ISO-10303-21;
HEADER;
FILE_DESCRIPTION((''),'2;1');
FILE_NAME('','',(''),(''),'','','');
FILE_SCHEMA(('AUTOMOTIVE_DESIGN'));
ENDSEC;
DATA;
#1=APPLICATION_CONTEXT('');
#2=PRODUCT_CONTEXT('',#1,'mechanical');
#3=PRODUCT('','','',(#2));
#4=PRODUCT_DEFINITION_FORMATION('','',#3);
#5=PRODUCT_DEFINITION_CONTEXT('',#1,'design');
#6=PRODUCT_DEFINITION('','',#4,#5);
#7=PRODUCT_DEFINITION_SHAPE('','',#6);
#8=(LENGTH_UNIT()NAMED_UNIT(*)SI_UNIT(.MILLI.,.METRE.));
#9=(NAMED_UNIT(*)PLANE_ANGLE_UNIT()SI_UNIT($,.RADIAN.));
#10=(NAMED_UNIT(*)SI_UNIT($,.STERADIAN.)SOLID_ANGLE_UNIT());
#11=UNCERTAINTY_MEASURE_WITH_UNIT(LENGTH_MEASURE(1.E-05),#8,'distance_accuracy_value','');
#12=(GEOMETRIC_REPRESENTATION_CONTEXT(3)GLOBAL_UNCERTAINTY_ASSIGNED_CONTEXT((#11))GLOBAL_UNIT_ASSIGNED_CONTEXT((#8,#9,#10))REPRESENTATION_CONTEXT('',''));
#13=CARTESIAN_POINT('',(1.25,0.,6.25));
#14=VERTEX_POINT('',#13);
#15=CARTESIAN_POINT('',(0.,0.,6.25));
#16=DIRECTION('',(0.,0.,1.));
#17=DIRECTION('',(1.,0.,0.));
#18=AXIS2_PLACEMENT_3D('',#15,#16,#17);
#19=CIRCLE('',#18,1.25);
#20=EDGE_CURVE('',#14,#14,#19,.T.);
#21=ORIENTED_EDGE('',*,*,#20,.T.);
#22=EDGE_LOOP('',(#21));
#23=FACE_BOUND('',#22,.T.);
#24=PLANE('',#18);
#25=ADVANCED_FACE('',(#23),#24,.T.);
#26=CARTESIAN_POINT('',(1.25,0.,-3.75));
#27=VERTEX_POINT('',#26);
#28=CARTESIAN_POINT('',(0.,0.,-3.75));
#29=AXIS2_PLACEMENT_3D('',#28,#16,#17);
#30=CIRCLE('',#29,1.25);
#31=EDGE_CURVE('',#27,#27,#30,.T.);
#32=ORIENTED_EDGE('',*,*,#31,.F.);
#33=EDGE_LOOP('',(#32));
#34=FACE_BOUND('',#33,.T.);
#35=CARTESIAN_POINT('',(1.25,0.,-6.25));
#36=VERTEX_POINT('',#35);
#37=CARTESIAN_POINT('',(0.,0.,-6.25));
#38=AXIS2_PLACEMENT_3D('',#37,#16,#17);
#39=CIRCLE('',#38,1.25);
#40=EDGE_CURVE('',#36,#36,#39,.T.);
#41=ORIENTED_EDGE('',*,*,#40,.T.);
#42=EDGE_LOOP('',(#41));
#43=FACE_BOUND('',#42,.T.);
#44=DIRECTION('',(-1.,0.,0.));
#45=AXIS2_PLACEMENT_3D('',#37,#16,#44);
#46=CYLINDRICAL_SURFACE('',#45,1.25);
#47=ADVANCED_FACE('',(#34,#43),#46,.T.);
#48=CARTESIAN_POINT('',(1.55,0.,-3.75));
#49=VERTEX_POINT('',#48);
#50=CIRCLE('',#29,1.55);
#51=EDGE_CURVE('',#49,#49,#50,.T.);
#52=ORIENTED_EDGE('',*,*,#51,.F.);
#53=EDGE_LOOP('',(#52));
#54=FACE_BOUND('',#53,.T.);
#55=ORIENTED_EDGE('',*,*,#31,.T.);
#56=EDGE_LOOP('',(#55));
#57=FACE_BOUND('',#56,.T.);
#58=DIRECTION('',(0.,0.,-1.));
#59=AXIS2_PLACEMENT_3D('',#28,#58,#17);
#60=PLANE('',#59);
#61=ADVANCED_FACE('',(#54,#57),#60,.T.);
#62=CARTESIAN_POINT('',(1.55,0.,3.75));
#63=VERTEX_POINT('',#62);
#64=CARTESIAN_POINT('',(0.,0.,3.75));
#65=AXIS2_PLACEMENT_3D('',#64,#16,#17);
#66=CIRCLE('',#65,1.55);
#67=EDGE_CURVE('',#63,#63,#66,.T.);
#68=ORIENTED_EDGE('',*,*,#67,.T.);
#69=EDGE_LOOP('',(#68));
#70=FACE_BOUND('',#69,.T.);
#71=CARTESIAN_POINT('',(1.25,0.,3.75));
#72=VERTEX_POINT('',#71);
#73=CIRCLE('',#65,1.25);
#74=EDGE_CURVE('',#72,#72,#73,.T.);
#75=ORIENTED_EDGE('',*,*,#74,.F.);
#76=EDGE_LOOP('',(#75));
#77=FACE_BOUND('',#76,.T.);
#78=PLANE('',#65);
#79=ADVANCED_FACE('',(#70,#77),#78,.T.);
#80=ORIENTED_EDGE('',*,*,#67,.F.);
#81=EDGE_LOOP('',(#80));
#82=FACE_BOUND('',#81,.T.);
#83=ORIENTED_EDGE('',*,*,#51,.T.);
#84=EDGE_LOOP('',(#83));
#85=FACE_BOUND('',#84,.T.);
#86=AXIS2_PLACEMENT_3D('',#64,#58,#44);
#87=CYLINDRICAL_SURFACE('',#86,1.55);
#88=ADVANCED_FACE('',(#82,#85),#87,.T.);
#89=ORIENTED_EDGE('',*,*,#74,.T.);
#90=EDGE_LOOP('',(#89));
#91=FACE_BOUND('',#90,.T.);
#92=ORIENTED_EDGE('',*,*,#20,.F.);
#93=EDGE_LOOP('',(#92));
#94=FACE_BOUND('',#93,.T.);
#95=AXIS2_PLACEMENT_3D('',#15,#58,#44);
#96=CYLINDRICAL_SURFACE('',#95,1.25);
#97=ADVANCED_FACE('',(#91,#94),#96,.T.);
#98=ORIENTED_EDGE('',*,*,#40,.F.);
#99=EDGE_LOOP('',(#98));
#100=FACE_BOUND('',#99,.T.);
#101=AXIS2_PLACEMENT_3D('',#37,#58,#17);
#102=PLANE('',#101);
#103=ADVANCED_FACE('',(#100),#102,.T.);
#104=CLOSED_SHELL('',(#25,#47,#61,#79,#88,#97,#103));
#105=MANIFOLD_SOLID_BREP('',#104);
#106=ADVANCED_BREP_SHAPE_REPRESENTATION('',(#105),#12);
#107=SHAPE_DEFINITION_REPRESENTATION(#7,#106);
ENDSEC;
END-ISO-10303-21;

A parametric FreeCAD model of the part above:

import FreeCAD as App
import Part
import Sketcher
Q = App.Units.Quantity

doc = App.newDocument("Part")
body = doc.addObject("PartDesign::Body", "Body")

# Sketch on XY plane
sketch1 = body.newObject("Sketcher::SketchObject", "Sketch")
sketch1.AttachmentSupport = (doc.getObject("XY_Plane"), [""])
sketch1.MapMode = "FlatFace"
sketch1.addGeometry(Part.Circle(App.Vector(0, 0, 0), App.Vector(0, 0, 1), 1.6), False)
sketch1.addConstraint(Sketcher.Constraint("Coincident", 0, 3, -1, 1))
sketch1.addConstraint(Sketcher.Constraint("Diameter", 0, Q("3.1 mm")))
pad1 = body.newObject("PartDesign::Pad", "Pad")
pad1.Profile = sketch1
pad1.Length = 3.75

# Sketch on XY plane
sketch2 = body.newObject("Sketcher::SketchObject", "Sketch001")
sketch2.AttachmentSupport = (doc.getObject("XY_Plane"), [""])
sketch2.MapMode = "FlatFace"
sketch2.AttachmentOffset = App.Placement(App.Vector(0, 0, 3.75), App.Rotation())
sketch2.addGeometry(Part.Circle(App.Vector(0, 0, 0), App.Vector(0, 0, 1), 1.2), False)
sketch2.addConstraint(Sketcher.Constraint("Coincident", 0, 3, -1, 1))
sketch2.addConstraint(Sketcher.Constraint("Diameter", 0, Q("2.5 mm")))
pad2 = body.newObject("PartDesign::Pad", "Pad001")
pad2.Profile = sketch2
pad2.Length = 2.5
doc.recompute()

mirrored = body.newObject("PartDesign::Mirrored", "Mirrored")
mirrored.Originals = [pad1, pad2]
mirrored.MirrorPlane = (doc.getObject("XY_Plane"), [""])
body.Tip = mirrored

doc.recompute()
